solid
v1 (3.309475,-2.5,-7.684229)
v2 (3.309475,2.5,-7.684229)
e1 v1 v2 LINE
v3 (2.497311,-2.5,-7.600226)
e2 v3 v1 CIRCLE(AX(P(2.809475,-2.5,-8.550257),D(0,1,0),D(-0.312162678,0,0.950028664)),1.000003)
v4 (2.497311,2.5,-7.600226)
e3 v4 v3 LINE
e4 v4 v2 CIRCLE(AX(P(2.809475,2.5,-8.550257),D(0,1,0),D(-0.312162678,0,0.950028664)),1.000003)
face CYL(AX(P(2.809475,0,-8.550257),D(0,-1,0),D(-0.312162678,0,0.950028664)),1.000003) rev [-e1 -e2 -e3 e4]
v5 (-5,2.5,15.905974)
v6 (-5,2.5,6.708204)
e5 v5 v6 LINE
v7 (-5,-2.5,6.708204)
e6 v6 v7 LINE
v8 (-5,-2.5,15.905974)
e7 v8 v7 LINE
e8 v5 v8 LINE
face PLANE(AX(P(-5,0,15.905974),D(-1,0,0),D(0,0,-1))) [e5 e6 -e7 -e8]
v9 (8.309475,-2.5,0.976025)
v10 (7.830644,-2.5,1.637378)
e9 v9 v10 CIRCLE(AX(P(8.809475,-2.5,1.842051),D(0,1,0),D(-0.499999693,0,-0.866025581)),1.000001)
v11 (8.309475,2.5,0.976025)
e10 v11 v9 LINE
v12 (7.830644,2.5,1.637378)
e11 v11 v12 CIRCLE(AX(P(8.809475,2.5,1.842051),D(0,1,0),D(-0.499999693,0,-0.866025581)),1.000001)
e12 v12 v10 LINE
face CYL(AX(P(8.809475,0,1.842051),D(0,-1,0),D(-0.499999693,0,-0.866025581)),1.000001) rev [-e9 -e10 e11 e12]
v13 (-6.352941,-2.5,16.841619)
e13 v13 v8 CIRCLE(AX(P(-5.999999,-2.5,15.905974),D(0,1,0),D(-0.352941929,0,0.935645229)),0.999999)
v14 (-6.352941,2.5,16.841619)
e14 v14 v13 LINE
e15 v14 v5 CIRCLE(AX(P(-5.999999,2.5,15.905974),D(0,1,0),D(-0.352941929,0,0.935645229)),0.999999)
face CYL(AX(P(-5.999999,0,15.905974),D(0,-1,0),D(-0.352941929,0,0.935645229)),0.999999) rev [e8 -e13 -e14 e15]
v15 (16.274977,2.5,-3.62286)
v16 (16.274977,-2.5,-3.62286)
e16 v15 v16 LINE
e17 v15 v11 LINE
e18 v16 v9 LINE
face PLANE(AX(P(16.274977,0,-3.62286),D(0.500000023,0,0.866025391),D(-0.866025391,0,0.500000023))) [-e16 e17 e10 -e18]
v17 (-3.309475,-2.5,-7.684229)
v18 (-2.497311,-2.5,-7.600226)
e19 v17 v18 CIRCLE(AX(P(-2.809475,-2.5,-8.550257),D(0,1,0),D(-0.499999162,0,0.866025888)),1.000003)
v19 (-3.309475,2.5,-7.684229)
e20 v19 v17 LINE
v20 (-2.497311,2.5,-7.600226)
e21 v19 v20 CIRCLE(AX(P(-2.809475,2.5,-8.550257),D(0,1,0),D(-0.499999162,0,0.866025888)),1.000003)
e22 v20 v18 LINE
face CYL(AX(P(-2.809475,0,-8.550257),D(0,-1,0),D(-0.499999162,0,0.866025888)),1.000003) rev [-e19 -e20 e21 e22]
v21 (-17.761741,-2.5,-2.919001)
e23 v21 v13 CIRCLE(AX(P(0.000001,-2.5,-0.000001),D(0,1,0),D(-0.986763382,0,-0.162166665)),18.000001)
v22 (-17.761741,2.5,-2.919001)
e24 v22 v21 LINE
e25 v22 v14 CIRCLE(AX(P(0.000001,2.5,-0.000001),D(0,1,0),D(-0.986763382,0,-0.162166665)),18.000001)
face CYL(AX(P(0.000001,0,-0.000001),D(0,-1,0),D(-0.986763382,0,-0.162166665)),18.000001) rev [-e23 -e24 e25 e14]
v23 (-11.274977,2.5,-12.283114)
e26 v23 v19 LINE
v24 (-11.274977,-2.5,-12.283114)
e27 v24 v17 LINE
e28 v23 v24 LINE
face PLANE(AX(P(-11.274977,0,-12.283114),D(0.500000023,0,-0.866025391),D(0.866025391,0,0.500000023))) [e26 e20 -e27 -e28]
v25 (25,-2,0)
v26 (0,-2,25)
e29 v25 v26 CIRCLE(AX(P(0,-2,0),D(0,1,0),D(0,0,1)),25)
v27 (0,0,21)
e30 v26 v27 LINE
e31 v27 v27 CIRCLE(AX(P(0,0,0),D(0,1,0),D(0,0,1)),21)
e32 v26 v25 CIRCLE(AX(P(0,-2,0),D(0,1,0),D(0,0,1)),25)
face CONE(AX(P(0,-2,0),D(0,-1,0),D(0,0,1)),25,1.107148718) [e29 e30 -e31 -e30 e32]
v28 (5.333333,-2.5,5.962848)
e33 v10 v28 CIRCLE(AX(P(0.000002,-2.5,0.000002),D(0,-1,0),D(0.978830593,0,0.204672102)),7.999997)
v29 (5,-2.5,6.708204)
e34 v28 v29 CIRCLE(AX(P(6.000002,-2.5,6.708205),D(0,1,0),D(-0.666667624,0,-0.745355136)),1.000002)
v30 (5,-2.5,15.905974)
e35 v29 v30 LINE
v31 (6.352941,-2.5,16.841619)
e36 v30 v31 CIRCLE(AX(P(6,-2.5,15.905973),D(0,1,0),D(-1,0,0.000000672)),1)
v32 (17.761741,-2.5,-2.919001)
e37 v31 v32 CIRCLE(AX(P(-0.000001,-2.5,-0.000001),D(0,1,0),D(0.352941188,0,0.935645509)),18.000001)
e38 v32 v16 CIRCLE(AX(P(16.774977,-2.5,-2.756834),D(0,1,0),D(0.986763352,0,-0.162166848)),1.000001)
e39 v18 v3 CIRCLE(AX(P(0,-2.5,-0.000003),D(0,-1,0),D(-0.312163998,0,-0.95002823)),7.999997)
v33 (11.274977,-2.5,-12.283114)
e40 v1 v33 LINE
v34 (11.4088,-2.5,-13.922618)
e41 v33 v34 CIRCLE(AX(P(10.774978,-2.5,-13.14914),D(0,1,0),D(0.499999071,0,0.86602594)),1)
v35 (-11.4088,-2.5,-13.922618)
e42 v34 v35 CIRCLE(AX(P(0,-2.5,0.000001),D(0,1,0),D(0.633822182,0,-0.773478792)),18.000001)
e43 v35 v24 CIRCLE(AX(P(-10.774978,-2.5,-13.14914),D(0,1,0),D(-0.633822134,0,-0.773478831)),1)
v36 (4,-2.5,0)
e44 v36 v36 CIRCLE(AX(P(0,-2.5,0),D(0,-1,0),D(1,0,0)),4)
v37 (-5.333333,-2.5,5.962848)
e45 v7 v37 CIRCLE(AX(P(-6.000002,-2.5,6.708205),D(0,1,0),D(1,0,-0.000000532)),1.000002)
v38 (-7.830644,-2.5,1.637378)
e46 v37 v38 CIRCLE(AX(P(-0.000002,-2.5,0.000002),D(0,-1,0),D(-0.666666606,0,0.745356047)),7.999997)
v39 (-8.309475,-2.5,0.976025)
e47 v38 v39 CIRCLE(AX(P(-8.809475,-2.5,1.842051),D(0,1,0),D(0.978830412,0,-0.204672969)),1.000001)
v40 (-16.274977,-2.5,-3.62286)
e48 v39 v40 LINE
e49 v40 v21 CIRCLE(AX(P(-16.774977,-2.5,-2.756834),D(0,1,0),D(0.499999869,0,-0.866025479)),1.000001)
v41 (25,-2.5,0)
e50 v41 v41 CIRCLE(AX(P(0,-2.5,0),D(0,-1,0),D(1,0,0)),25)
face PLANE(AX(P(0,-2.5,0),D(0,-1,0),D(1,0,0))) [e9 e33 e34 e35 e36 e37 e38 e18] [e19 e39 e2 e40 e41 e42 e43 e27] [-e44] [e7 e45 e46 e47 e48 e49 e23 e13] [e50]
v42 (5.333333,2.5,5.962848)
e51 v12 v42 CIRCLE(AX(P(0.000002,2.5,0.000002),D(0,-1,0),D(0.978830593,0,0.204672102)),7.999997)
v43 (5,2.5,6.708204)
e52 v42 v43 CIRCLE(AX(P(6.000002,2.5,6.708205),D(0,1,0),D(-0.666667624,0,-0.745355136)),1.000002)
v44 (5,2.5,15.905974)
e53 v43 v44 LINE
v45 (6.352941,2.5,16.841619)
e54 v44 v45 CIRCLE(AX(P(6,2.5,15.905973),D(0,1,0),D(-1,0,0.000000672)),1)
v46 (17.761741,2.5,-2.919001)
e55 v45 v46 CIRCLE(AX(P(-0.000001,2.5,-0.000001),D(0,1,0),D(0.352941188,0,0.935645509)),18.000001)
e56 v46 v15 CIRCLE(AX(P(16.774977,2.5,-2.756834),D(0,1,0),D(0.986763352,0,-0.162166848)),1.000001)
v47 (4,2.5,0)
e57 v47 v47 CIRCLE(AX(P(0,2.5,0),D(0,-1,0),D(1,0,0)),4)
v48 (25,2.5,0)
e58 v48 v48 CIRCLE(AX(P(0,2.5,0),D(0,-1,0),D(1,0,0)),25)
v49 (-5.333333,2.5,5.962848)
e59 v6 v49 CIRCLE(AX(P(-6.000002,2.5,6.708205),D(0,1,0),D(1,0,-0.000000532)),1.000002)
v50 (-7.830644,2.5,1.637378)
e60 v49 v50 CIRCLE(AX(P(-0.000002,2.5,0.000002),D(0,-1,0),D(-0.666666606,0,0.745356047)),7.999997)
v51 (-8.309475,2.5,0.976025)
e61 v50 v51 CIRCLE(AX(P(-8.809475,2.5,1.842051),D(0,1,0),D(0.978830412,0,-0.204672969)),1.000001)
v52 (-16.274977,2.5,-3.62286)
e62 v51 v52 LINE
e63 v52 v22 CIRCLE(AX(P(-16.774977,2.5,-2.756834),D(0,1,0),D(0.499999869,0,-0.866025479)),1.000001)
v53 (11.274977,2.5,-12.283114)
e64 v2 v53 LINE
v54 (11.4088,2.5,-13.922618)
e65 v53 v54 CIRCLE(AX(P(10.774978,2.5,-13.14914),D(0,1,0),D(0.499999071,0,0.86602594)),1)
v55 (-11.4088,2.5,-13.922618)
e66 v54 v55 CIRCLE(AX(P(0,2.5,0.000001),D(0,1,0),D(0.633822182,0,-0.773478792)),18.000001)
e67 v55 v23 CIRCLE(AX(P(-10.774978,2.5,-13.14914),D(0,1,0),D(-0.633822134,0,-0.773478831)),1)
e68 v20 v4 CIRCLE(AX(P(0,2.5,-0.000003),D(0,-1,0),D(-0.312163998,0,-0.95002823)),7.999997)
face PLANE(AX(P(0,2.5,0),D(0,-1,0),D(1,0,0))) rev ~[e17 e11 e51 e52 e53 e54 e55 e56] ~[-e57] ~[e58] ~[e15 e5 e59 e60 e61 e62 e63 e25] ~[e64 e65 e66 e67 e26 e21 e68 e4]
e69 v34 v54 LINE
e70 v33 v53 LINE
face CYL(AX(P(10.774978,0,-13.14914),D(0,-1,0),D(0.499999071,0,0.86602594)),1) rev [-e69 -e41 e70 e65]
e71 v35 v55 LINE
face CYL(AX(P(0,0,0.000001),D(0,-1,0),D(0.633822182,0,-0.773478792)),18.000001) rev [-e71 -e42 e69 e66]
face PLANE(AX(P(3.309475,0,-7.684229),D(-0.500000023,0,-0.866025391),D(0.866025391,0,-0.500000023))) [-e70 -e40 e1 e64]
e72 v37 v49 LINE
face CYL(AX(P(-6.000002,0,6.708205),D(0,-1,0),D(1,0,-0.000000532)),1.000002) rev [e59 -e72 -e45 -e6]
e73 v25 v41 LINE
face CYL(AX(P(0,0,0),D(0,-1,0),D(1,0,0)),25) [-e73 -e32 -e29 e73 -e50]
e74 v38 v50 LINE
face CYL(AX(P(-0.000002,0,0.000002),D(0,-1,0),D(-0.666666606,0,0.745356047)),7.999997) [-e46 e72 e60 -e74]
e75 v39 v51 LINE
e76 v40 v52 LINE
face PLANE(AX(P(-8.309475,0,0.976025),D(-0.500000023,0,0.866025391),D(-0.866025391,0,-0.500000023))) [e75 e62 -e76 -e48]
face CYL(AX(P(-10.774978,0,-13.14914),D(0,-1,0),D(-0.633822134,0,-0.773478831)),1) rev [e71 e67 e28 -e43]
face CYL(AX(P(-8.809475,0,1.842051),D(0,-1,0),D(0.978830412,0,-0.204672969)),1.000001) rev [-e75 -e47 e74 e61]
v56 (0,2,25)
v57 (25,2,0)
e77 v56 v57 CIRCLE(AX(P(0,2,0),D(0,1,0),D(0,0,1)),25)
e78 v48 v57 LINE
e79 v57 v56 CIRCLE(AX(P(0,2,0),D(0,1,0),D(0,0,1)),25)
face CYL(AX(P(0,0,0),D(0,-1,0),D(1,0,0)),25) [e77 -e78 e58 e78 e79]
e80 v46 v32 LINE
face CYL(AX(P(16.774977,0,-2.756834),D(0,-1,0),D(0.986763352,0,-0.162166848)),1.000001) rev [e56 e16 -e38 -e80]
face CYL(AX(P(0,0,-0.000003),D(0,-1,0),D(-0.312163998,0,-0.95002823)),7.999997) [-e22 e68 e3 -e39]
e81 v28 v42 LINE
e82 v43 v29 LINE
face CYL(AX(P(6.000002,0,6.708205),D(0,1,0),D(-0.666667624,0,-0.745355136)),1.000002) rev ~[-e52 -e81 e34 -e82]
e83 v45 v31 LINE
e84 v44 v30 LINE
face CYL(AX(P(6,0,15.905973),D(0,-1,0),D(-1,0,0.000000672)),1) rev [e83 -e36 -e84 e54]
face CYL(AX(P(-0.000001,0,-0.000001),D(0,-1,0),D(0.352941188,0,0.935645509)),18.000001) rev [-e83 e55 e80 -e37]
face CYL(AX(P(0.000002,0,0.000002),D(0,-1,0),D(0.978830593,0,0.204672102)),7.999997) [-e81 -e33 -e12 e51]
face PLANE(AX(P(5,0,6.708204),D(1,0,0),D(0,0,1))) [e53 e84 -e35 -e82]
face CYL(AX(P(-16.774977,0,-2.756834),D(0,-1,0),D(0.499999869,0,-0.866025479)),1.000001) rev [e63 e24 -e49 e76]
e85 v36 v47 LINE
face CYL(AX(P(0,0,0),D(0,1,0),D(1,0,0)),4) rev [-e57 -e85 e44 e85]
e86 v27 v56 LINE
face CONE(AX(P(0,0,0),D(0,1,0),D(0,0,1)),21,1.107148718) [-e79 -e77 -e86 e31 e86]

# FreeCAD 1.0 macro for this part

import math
import FreeCAD as App
import Part
import Sketcher

V = App.Vector
Q = App.Units.Quantity


def add_polygon(sketch, points):
    """Adds a closed chain of lines whose ends are joined by coincident constraints."""
    first, n = sketch.GeometryCount, len(points)
    for a, b in zip(points, points[1:] + points[:1]):
        sketch.addGeometry(Part.LineSegment(App.Vector(*a, 0), App.Vector(*b, 0)), False)
    for i in range(n):
        sketch.addConstraint(Sketcher.Constraint("Coincident", first + i, 2, first + (i + 1) % n, 1))

doc = App.newDocument("Part")
params = doc.addObject("Spreadsheet::Sheet", "Params")
for row, (alias, value) in enumerate([
    ("sketch1_diameter", "50 mm"),
    ("sketch1_diameter2", "8 mm"),
    ("sketch1_radius", "1 mm"),
    ("sketch1_radius2", "18.000001 mm"),
    ("pad1_length", "5 mm"),
    ("sketch2_width", "4 mm"),
    ("groove_angle", "360 deg"),
], start=1):
    params.set(f"A{row}", alias)
    params.set(f"B{row}", "=" + value)
    params.setAlias(f"B{row}", alias)

body = doc.addObject("PartDesign::Body", "Body")

sketch1 = body.newObject("Sketcher::SketchObject", "Sketch")
sketch1.AttachmentSupport = (doc.getObject("XZ_Plane"), [""])
sketch1.MapMode = "FlatFace"
sketch1.addGeometry([
    Part.Circle(V(0, 0, 0), V(0, 0, 1), 25),
    Part.ArcOfCircle(Part.Circle(V(-10.8, -13.1, 0), V(0, 0, 1), 1), math.radians(120), math.radians(231)),
    Part.LineSegment(V(-11.3, -12.3, 0), V(-3.3, -7.7, 0)),
    Part.ArcOfCircle(Part.Circle(V(-2.8, -8.6, 0), V(0, 0, 1), 1), math.radians(72), math.radians(120)),
    Part.ArcOfCircle(Part.Circle(V(0, 0, 0), V(0, 0, 1), 8), math.radians(-108), math.radians(-72)),
    Part.ArcOfCircle(Part.Circle(V(2.8, -8.6, 0), V(0, 0, 1), 1), math.radians(60), math.radians(108)),
    Part.LineSegment(V(3.3, -7.7, 0), V(11.3, -12.3, 0)),
    Part.ArcOfCircle(Part.Circle(V(10.8, -13.1, 0), V(0, 0, 1), 1), math.radians(-51), math.radians(60)),
    Part.ArcOfCircle(Part.Circle(V(0, 0, 0), V(0, 0, 1), 18), math.radians(-129), math.radians(-51)),
    Part.ArcOfCircle(Part.Circle(V(-16.8, -2.8, 0), V(0, 0, 1), 1), math.radians(-171), math.radians(-60)),
    Part.ArcOfCircle(Part.Circle(V(0, 0, 0), V(0, 0, 1), 18), math.radians(111), math.radians(189)),
    Part.ArcOfCircle(Part.Circle(V(-6, 15.9, 0), V(0, 0, 1), 1), math.radians(0), math.radians(111)),
    Part.LineSegment(V(-5, 15.9, 0), V(-5, 6.7, 0)),
    Part.ArcOfCircle(Part.Circle(V(-6, 6.7, 0), V(0, 0, 1), 1), math.radians(-48), math.radians(0)),
    Part.ArcOfCircle(Part.Circle(V(0, 0, 0), V(0, 0, 1), 8), math.radians(132), math.radians(168)),
    Part.ArcOfCircle(Part.Circle(V(-8.8, 1.8, 0), V(0, 0, 1), 1), math.radians(-60), math.radians(-12)),
    Part.LineSegment(V(-8.3, 1, 0), V(-16.3, -3.6, 0)),
    Part.Circle(V(0, 0, 0), V(0, 0, 1), 4),
    Part.ArcOfCircle(Part.Circle(V(0, 0, 0), V(0, 0, 1), 8), math.radians(12), math.radians(48)),
    Part.ArcOfCircle(Part.Circle(V(6, 6.7, 0), V(0, 0, 1), 1), math.radians(-180), math.radians(-132)),
    Part.LineSegment(V(5, 6.7, 0), V(5, 15.9, 0)),
    Part.ArcOfCircle(Part.Circle(V(6, 15.9, 0), V(0, 0, 1), 1), math.radians(69), math.radians(180)),
    Part.ArcOfCircle(Part.Circle(V(0, 0, 0), V(0, 0, 1), 18), math.radians(-9), math.radians(69)),
    Part.ArcOfCircle(Part.Circle(V(16.8, -2.8, 0), V(0, 0, 1), 1), math.radians(-120), math.radians(-9)),
    Part.LineSegment(V(16.3, -3.6, 0), V(8.3, 1, 0)),
    Part.ArcOfCircle(Part.Circle(V(8.8, 1.8, 0), V(0, 0, 1), 1), math.radians(-168), math.radians(-120)),
], False)
sketch1.addConstraint([
    Sketcher.Constraint("Tangent", 1, 1, 2, 1),
    Sketcher.Constraint("Tangent", 2, 2, 3, 2),
    Sketcher.Constraint("Tangent", 3, 1, 4, 1),
    Sketcher.Constraint("Tangent", 4, 2, 5, 2),
    Sketcher.Constraint("Tangent", 5, 1, 6, 1),
    Sketcher.Constraint("Tangent", 6, 2, 7, 2),
    Sketcher.Constraint("Tangent", 7, 1, 8, 2),
    Sketcher.Constraint("Tangent", 8, 1, 1, 2),
    Sketcher.Constraint("Tangent", 9, 1, 10, 2),
    Sketcher.Constraint("Tangent", 10, 1, 11, 2),
    Sketcher.Constraint("Tangent", 11, 1, 12, 1),
    Sketcher.Constraint("Tangent", 12, 2, 13, 2),
    Sketcher.Constraint("Tangent", 13, 1, 14, 1),
    Sketcher.Constraint("Tangent", 14, 2, 15, 2),
    Sketcher.Constraint("Tangent", 15, 1, 16, 1),
    Sketcher.Constraint("Tangent", 16, 2, 9, 2),
    Sketcher.Constraint("Tangent", 18, 2, 19, 2),
    Sketcher.Constraint("Tangent", 19, 1, 20, 1),
    Sketcher.Constraint("Tangent", 20, 2, 21, 2),
    Sketcher.Constraint("Tangent", 21, 1, 22, 2),
    Sketcher.Constraint("Tangent", 22, 1, 23, 2),
    Sketcher.Constraint("Tangent", 23, 1, 24, 1),
    Sketcher.Constraint("Tangent", 24, 2, 25, 2),
    Sketcher.Constraint("Tangent", 25, 1, 18, 1),
    Sketcher.Constraint("Vertical", 12),
    Sketcher.Constraint("Vertical", 20),
    Sketcher.Constraint("Coincident", 0, 3, -1, 1),
    Sketcher.Constraint("Coincident", 4, 3, -1, 1),
    Sketcher.Constraint("Coincident", 8, 3, -1, 1),
    Sketcher.Constraint("Coincident", 10, 3, -1, 1),
    Sketcher.Constraint("Coincident", 14, 3, -1, 1),
    Sketcher.Constraint("Coincident", 17, 3, -1, 1),
    Sketcher.Constraint("Coincident", 18, 3, -1, 1),
    Sketcher.Constraint("Coincident", 22, 3, -1, 1),
    Sketcher.Constraint("Equal", 3, 5),
    Sketcher.Constraint("Equal", 1, 7),
    Sketcher.Constraint("Equal", 7, 9),
    Sketcher.Constraint("Equal", 8, 10),
    Sketcher.Constraint("Equal", 9, 11),
    Sketcher.Constraint("Equal", 9, 13),
    Sketcher.Constraint("Equal", 4, 14),
    Sketcher.Constraint("Equal", 13, 15),
    Sketcher.Constraint("Equal", 14, 18),
    Sketcher.Constraint("Equal", 15, 19),
    Sketcher.Constraint("Equal", 19, 21),
    Sketcher.Constraint("Equal", 10, 22),
    Sketcher.Constraint("Equal", 21, 23),
    Sketcher.Constraint("Equal", 23, 25),
    Sketcher.Constraint("Symmetric", 2, 2, 5, 1, -2),
    Sketcher.Constraint("Symmetric", 16, 2, 23, 1, -2),
    Sketcher.Constraint("Parallel", 2, 16),
    Sketcher.Constraint("Horizontal", 13, 3, 19, 3),
    Sketcher.Constraint("Equal", 6, 16),
    Sketcher.Constraint("Diameter", 0, Q("50 mm")),
    Sketcher.Constraint("Diameter", 17, Q("8 mm")),
    Sketcher.Constraint("Radius", 1, Q("1 mm")),
    Sketcher.Constraint("Radius", 8, Q("18.000001 mm")),
    Sketcher.Constraint("Angle", 2, Q("30.000001 deg")),
    Sketcher.Constraint("DistanceX", 11, 3, -1, 1, Q("5.999999 mm")),
    Sketcher.Constraint("DistanceX", 9, 3, 1, 3, Q("5.999999 mm")),
    Sketcher.Constraint("DistanceX", 2, 2, 3, 3, Q("0.5 mm")),
    Sketcher.Constraint("Radius", 4, Q("7.999997 mm")),
])
sketch1.setExpression("Constraints[53]", "Params.sketch1_diameter")
sketch1.setExpression("Constraints[54]", "Params.sketch1_diameter2")
sketch1.setExpression("Constraints[55]", "Params.sketch1_radius")
sketch1.setExpression("Constraints[56]", "Params.sketch1_radius2")
pad1 = body.newObject("PartDesign::Pad", "Pad")
pad1.Profile = sketch1
pad1.setExpression("Length", "Params.pad1_length")
pad1.Midplane = True

sketch2 = body.newObject("Sketcher::SketchObject", "Sketch001")
sketch2.AttachmentSupport = (doc.getObject("YZ_Plane"), [""])
sketch2.MapMode = "FlatFace"
add_polygon(sketch2, [(-2, 25), (0, 21), (2, 25)])
sketch2.addConstraint([
    Sketcher.Constraint("Horizontal", 2),
    Sketcher.Constraint("PointOnObject", 0, 2, -2),
    Sketcher.Constraint("Equal", 0, 1),
    Sketcher.Constraint("DistanceX", 2, 2, 2, 1, Q("4 mm")),
    Sketcher.Constraint("DistanceY", -1, 1, 0, 2, Q("21 mm")),
    Sketcher.Constraint("DistanceY", -1, 1, 1, 2, Q("25 mm")),
])
sketch2.setExpression("Constraints[6]", "Params.sketch2_width")
groove = body.newObject("PartDesign::Groove", "Groove")
groove.Profile = sketch2
groove.ReferenceAxis = (sketch2, ["H_Axis"])
groove.setExpression("Angle", "Params.groove_angle")

doc.recompute()
